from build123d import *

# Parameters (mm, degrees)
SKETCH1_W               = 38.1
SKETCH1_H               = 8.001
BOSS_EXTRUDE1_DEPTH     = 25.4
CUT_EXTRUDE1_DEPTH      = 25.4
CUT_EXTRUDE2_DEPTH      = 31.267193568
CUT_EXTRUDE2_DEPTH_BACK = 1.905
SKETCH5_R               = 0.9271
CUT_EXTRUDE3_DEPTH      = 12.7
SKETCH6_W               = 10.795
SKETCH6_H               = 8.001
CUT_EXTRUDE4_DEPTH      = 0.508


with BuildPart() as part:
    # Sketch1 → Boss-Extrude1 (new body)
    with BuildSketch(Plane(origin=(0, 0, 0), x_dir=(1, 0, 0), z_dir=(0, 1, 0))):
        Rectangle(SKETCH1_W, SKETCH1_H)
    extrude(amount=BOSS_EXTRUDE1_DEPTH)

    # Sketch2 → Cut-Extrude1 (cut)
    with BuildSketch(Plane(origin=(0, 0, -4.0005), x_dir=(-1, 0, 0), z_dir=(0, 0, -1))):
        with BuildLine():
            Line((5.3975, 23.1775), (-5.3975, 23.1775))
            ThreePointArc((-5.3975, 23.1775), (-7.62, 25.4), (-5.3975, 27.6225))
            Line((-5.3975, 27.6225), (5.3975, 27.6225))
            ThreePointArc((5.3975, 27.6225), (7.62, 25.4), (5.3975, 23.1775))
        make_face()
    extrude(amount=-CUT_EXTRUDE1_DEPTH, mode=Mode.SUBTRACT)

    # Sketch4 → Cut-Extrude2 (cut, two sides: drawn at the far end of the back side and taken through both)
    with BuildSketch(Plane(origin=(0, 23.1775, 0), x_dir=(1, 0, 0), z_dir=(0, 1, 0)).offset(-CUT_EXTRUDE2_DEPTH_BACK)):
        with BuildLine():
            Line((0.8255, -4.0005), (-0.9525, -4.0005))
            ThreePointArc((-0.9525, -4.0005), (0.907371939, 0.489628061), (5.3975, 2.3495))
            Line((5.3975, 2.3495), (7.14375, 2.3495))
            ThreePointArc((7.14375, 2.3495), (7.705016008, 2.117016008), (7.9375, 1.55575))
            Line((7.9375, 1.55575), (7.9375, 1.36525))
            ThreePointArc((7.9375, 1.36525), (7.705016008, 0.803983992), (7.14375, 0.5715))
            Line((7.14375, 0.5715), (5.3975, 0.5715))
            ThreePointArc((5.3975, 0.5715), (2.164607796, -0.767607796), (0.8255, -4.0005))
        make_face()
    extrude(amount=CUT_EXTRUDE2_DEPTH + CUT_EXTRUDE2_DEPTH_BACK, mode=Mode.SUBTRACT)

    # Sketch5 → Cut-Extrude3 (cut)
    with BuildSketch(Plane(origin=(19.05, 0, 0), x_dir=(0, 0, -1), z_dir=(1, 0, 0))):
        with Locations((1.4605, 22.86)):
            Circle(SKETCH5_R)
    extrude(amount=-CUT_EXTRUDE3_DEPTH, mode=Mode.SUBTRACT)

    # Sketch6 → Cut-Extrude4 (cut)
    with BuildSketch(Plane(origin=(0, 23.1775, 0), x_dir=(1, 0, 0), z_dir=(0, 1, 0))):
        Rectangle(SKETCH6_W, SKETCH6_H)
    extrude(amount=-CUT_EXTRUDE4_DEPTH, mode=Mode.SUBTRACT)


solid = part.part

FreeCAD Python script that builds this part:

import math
import FreeCAD as App
import Part
import Sketcher
from FreeCAD import Vector
Q = App.Units.Quantity


def add_polygon(sketch, points):
    """Adds a closed chain of lines whose ends are joined by coincident constraints."""
    first, n = sketch.GeometryCount, len(points)
    for a, b in zip(points, points[1:] + points[:1]):
        sketch.addGeometry(Part.LineSegment(App.Vector(*a, 0), App.Vector(*b, 0)), False)
    for i in range(n):
        sketch.addConstraint(Sketcher.Constraint("Coincident", first + i, 2, first + (i + 1) % n, 1))

doc = App.newDocument("Part")
body = doc.addObject("PartDesign::Body", "Body")

# Sketch on XZ plane
sketch1 = body.newObject("Sketcher::SketchObject", "Sketch")
sketch1.AttachmentSupport = (doc.getObject("XZ_Plane"), [""])
sketch1.MapMode = "FlatFace"
add_polygon(sketch1, [(-19, -4), (-19, 4), (19, 4), (19, -4)])  # lines 0-3
sketch1.addConstraint(Sketcher.Constraint("Vertical", 0))
sketch1.addConstraint(Sketcher.Constraint("Horizontal", 1))
sketch1.addConstraint(Sketcher.Constraint("Vertical", 2))
sketch1.addConstraint(Sketcher.Constraint("Horizontal", 3))
sketch1.addConstraint(Sketcher.Constraint("Symmetric", 0, 2, 2, 2, -1, 1))
sketch1.addConstraint(Sketcher.Constraint("DistanceX", 1, 1, 1, 2, Q("1.5 in")))
sketch1.addConstraint(Sketcher.Constraint("DistanceY", 0, 1, 0, 2, Q("0.315 in")))
pad1 = body.newObject("PartDesign::Pad", "Pad")
pad1.Profile = sketch1
pad1.Length = Q("1 in")
pad1.Reversed = True

# Sketch on XY plane
sketch2 = body.newObject("Sketcher::SketchObject", "Sketch001")
sketch2.AttachmentSupport = (doc.getObject("XY_Plane"), [""])
sketch2.MapMode = "FlatFace"
sketch2.AttachmentOffset = App.Placement(Vector(0, 0, -0.1575 * 25.4), App.Rotation())
sketch2.addGeometry(Part.LineSegment(Vector(5.4, 23.2, 0), Vector(-5.4, 23.2, 0)), False)
sketch2.addGeometry(Part.ArcOfCircle(Part.Circle(Vector(-5.4, 25.4, 0), Vector(0, 0, 1), 2.2), math.radians(90), math.radians(270)), False)
sketch2.addGeometry(Part.LineSegment(Vector(-5.4, 27.6, 0), Vector(5.4, 27.6, 0)), False)
sketch2.addGeometry(Part.ArcOfCircle(Part.Circle(Vector(5.4, 25.4, 0), Vector(0, 0, 1), 2.2), math.radians(-90), math.radians(90)), False)
sketch2.addConstraint(Sketcher.Constraint("Tangent", 0, 2, 1, 2))
sketch2.addConstraint(Sketcher.Constraint("Tangent", 1, 1, 2, 1))
sketch2.addConstraint(Sketcher.Constraint("Tangent", 2, 2, 3, 2))
sketch2.addConstraint(Sketcher.Constraint("Tangent", 3, 1, 0, 1))
sketch2.addConstraint(Sketcher.Constraint("Horizontal", 0))
sketch2.addConstraint(Sketcher.Constraint("Horizontal", 2))
sketch2.addConstraint(Sketcher.Constraint("DistanceY", -1, 1, 1, 3, Q("1 in")))
sketch2.addConstraint(Sketcher.Constraint("Radius", 1, Q("0.0875 in")))
sketch2.addConstraint(Sketcher.Constraint("DistanceX", 0, 2, 0, 1, Q("0.425 in")))
sketch2.addConstraint(Sketcher.Constraint("DistanceX", 1, 3, -1, 1, Q("0.2125 in")))
pocket1 = body.newObject("PartDesign::Pocket", "Pocket")
pocket1.Profile = sketch2
pocket1.Length = Q("1 in")
pocket1.Reversed = True

# Sketch on XZ plane
sketch3 = body.newObject("Sketcher::SketchObject", "Sketch002")
sketch3.AttachmentSupport = (doc.getObject("XZ_Plane"), [""])
sketch3.MapMode = "FlatFace"
sketch3.AttachmentOffset = App.Placement(Vector(0, 0, -0.9125 * 25.4), App.Rotation())
sketch3.addGeometry(Part.LineSegment(Vector(-0.95, 4, 0), Vector(0.83, 4, 0)), False)
sketch3.addGeometry(Part.ArcOfCircle(Part.Circle(Vector(5.4, 4, 0), Vector(0, 0, 1), 4.57), math.radians(180), math.radians(270)), False)
sketch3.addGeometry(Part.LineSegment(Vector(5.4, -0.57, 0), Vector(7.14, -0.57, 0)), False)
sketch3.addGeometry(Part.ArcOfCircle(Part.Circle(Vector(7.14, -1.37, 0), Vector(0, 0, 1), 0.79), math.radians(0), math.radians(90)), False)
sketch3.addGeometry(Part.LineSegment(Vector(7.94, -1.37, 0), Vector(7.94, -1.56, 0)), False)
sketch3.addGeometry(Part.ArcOfCircle(Part.Circle(Vector(7.14, -1.56, 0), Vector(0, 0, 1), 0.79), math.radians(-90), math.radians(0)), False)
sketch3.addGeometry(Part.LineSegment(Vector(7.14, -2.35, 0), Vector(5.4, -2.35, 0)), False)
sketch3.addGeometry(Part.ArcOfCircle(Part.Circle(Vector(5.4, 4, 0), Vector(0, 0, 1), 6.35), math.radians(180), math.radians(270)), False)
sketch3.addConstraint(Sketcher.Constraint("Coincident", 0, 2, 1, 1))
sketch3.addConstraint(Sketcher.Constraint("Tangent", 1, 2, 2, 1))
sketch3.addConstraint(Sketcher.Constraint("Tangent", 2, 2, 3, 2))
sketch3.addConstraint(Sketcher.Constraint("Tangent", 3, 1, 4, 1))
sketch3.addConstraint(Sketcher.Constraint("Tangent", 4, 2, 5, 2))
sketch3.addConstraint(Sketcher.Constraint("Tangent", 5, 1, 6, 1))
sketch3.addConstraint(Sketcher.Constraint("Tangent", 6, 2, 7, 2))
sketch3.addConstraint(Sketcher.Constraint("Coincident", 7, 1, 0, 1))
sketch3.addConstraint(Sketcher.Constraint("Horizontal", 0))
sketch3.addConstraint(Sketcher.Constraint("Horizontal", 2))
sketch3.addConstraint(Sketcher.Constraint("Vertical", 4))
sketch3.addConstraint(Sketcher.Constraint("Horizontal", 6))
sketch3.addConstraint(Sketcher.Constraint("Coincident", 7, 3, 1, 3))
sketch3.addConstraint(Sketcher.Constraint("Equal", 3, 5))
sketch3.addConstraint(Sketcher.Constraint("Horizontal", 7, 3, 0, 2))
sketch3.addConstraint(Sketcher.Constraint("Radius", 1, Q("0.18 in")))
sketch3.addConstraint(Sketcher.Constraint("Radius", 7, Q("0.25 in")))
sketch3.addConstraint(Sketcher.Constraint("Radius", 3, Q("0.03125 in")))
sketch3.addConstraint(Sketcher.Constraint("DistanceX", 1, 2, 3, 1, Q("0.1 in")))
sketch3.addConstraint(Sketcher.Constraint("DistanceX", -1, 1, 3, 3, Q("0.28125 in")))
sketch3.addConstraint(Sketcher.Constraint("DistanceY", -1, 1, 1, 3, Q("0.1575 in")))
pocket2 = body.newObject("PartDesign::Pocket", "Pocket001")
pocket2.Profile = sketch3
pocket2.Type = "TwoLengths"
pocket2.Length = 31.267194
pocket2.Length2 = Q("0.075 in")

# Sketch on YZ plane
sketch4 = body.newObject("Sketcher::SketchObject", "Sketch003")
sketch4.AttachmentSupport = (doc.getObject("YZ_Plane"), [""])
sketch4.MapMode = "FlatFace"
sketch4.AttachmentOffset = App.Placement(Vector(0, 0, 0.75 * 25.4), App.Rotation())
sketch4.addGeometry(Part.Circle(Vector(22.9, -1.5, 0), Vector(0, 0, 1), 0.9), False)
sketch4.addConstraint(Sketcher.Constraint("Diameter", 0, Q("0.073 in")))
sketch4.addConstraint(Sketcher.Constraint("DistanceX", -1, 1, 0, 3, Q("0.9 in")))
sketch4.addConstraint(Sketcher.Constraint("DistanceY", 0, 3, -1, 1, Q("0.0575 in")))
pocket3 = body.newObject("PartDesign::Pocket", "Pocket002")
pocket3.Profile = sketch4
pocket3.Length = Q("0.5 in")

# Sketch on XZ plane
sketch5 = body.newObject("Sketcher::SketchObject", "Sketch004")
sketch5.AttachmentSupport = (doc.getObject("XZ_Plane"), [""])
sketch5.MapMode = "FlatFace"
sketch5.AttachmentOffset = App.Placement(Vector(0, 0, -0.9125 * 25.4), App.Rotation())
add_polygon(sketch5, [(-5, -4), (-5, 4), (5, 4), (5, -4)])  # lines 0-3
sketch5.addConstraint(Sketcher.Constraint("Vertical", 0))
sketch5.addConstraint(Sketcher.Constraint("Horizontal", 1))
sketch5.addConstraint(Sketcher.Constraint("Vertical", 2))
sketch5.addConstraint(Sketcher.Constraint("Horizontal", 3))
sketch5.addConstraint(Sketcher.Constraint("Symmetric", 0, 2, 2, 2, -1, 1))
sketch5.addConstraint(Sketcher.Constraint("DistanceX", 1, 1, 1, 2, Q("0.425 in")))
sketch5.addConstraint(Sketcher.Constraint("DistanceY", 0, 1, 0, 2, Q("0.315 in")))
pocket4 = body.newObject("PartDesign::Pocket", "Pocket003")
pocket4.Profile = sketch5
pocket4.Length = Q("0.02 in")
pocket4.Reversed = True

doc.recompute()
